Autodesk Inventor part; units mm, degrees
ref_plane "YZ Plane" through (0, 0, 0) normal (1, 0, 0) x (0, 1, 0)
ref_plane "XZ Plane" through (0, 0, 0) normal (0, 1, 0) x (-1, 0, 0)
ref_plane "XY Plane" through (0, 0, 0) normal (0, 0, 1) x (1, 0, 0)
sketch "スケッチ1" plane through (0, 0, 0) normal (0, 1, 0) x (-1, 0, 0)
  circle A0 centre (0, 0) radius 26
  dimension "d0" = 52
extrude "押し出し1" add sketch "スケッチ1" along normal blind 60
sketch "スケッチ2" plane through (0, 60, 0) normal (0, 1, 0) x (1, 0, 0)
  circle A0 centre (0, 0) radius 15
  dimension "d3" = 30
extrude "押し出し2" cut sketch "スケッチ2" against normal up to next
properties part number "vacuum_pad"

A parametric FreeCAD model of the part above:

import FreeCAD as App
import Part
import Sketcher
Q = App.Units.Quantity

doc = App.newDocument("Part")
body = doc.addObject("PartDesign::Body", "Body")

# Sketch on XZ plane
sketch1 = body.newObject("Sketcher::SketchObject", "Sketch")
sketch1.AttachmentSupport = (doc.getObject("XZ_Plane"), [""])
sketch1.MapMode = "FlatFace"
sketch1.addGeometry(Part.Circle(App.Vector(0, 0, 0), App.Vector(0, 0, 1), 26), False)
sketch1.addConstraint(Sketcher.Constraint("Coincident", 0, 3, -1, 1))
sketch1.addConstraint(Sketcher.Constraint("Diameter", 0, Q("52 mm")))
pad1 = body.newObject("PartDesign::Pad", "Pad")
pad1.Profile = sketch1
pad1.Length = 60
pad1.Reversed = True

# Sketch on XZ plane
sketch2 = body.newObject("Sketcher::SketchObject", "Sketch001")
sketch2.AttachmentSupport = (doc.getObject("XZ_Plane"), [""])
sketch2.MapMode = "FlatFace"
sketch2.AttachmentOffset = App.Placement(App.Vector(0, 0, -60), App.Rotation())
sketch2.addGeometry(Part.Circle(App.Vector(0, 0, 0), App.Vector(0, 0, 1), 15), False)
sketch2.addConstraint(Sketcher.Constraint("Coincident", 0, 3, -1, 1))
sketch2.addConstraint(Sketcher.Constraint("Diameter", 0, Q("30 mm")))
pocket1 = body.newObject("PartDesign::Pocket", "Pocket")
pocket1.Profile = sketch2
pocket1.Type = "UpToFirst"
pocket1.Reversed = True

doc.recompute()
